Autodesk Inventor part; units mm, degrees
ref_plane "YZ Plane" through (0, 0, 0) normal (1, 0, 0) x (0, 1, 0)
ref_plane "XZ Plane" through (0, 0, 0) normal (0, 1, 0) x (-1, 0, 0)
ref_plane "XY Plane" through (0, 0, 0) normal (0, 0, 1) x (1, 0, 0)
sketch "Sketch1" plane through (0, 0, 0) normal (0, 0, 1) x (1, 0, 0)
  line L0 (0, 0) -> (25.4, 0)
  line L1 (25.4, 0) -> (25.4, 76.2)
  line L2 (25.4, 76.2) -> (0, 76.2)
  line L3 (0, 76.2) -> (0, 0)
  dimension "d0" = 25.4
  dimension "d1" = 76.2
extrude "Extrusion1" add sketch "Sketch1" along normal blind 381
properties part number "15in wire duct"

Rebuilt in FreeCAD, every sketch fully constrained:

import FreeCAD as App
import Part
import Sketcher

V = App.Vector
Q = App.Units.Quantity


def add_polygon(sketch, points):
    """Adds a closed chain of lines whose ends are joined by coincident constraints."""
    first, n = sketch.GeometryCount, len(points)
    for a, b in zip(points, points[1:] + points[:1]):
        sketch.addGeometry(Part.LineSegment(App.Vector(*a, 0), App.Vector(*b, 0)), False)
    for i in range(n):
        sketch.addConstraint(Sketcher.Constraint("Coincident", first + i, 2, first + (i + 1) % n, 1))

doc = App.newDocument("Part")
body = doc.addObject("PartDesign::Body", "Body")

sketch1 = body.newObject("Sketcher::SketchObject", "Sketch")
sketch1.AttachmentSupport = (doc.getObject("XY_Plane"), [""])
sketch1.MapMode = "FlatFace"
add_polygon(sketch1, [(0, 76.2), (0, 0), (25.4, 0), (25.4, 76.2)])
sketch1.addConstraint(Sketcher.Constraint("Vertical", 0))
sketch1.addConstraint(Sketcher.Constraint("Horizontal", 1))
sketch1.addConstraint(Sketcher.Constraint("Vertical", 2))
sketch1.addConstraint(Sketcher.Constraint("Horizontal", 3))
sketch1.addConstraint(Sketcher.Constraint("Coincident", 0, 2, -1, 1))
sketch1.addConstraint(Sketcher.Constraint("DistanceX", 1, 1, 1, 2, Q("1 in")))
sketch1.addConstraint(Sketcher.Constraint("DistanceY", 0, 2, 0, 1, Q("3 in")))
pad1 = body.newObject("PartDesign::Pad", "Pad")
pad1.Profile = sketch1
pad1.Length = Q("15 in")

doc.recompute()
